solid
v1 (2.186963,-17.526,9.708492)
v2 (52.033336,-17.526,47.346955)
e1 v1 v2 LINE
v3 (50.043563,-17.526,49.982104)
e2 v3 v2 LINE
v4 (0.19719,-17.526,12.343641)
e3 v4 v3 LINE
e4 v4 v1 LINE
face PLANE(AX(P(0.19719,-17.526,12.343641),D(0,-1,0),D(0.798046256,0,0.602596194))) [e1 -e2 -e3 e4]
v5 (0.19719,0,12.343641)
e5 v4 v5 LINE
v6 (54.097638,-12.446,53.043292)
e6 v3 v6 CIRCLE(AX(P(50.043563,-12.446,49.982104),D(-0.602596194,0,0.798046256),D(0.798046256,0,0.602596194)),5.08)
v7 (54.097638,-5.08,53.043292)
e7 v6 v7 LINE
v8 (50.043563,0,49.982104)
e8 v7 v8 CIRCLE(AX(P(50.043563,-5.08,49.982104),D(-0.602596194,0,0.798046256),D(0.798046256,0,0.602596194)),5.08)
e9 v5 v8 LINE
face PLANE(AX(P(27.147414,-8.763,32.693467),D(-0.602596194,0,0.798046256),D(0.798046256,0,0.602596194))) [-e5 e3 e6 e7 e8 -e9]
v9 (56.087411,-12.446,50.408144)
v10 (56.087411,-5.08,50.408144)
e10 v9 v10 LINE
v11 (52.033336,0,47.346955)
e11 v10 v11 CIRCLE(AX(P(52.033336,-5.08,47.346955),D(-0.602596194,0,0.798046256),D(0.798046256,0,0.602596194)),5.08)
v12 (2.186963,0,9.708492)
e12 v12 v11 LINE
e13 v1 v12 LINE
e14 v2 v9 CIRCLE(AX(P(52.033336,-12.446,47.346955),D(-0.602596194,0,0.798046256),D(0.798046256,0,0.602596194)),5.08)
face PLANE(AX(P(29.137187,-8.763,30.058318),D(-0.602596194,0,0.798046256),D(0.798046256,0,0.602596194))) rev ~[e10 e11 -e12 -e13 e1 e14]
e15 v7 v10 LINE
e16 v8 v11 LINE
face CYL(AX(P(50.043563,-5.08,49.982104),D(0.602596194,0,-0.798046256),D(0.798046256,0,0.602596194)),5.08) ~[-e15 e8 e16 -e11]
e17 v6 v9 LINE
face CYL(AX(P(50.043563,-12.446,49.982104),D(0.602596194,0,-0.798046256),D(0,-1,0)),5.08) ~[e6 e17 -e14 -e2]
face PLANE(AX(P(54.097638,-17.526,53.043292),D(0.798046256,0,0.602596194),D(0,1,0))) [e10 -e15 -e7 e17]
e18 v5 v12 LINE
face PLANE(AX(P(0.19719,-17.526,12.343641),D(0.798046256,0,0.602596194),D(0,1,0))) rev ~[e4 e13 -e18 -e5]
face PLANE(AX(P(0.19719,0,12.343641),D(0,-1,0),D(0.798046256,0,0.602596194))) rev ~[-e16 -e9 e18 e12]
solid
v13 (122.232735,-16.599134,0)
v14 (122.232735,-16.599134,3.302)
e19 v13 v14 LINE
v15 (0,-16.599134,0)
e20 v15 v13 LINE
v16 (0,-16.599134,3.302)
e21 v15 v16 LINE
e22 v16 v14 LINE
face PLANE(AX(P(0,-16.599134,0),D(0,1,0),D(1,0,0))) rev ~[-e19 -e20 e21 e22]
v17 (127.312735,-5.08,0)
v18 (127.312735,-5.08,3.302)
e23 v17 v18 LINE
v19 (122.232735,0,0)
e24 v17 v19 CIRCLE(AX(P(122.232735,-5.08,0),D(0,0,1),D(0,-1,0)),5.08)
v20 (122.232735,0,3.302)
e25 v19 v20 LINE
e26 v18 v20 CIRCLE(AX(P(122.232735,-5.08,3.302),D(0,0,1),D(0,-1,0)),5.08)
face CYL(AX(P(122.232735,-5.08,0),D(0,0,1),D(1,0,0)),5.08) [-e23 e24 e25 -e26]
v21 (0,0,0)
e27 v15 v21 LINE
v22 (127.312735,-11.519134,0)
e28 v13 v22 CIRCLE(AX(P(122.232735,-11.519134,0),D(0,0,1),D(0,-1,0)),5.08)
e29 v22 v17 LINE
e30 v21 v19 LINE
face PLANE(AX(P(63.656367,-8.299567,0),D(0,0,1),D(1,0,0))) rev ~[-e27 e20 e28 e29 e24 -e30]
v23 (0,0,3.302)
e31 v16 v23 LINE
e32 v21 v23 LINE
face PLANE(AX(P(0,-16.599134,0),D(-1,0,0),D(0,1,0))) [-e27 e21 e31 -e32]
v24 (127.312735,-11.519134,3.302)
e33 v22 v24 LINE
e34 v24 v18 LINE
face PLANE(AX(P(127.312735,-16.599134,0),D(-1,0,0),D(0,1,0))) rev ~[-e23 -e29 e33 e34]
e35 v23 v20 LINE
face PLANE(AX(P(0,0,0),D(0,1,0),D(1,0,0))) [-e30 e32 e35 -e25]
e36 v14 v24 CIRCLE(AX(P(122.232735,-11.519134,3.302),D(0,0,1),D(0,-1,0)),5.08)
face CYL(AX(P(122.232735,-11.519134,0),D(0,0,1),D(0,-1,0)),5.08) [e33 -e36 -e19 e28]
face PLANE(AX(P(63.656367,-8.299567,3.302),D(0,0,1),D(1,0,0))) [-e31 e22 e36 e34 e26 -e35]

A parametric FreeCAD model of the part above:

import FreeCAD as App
import Part
import Sketcher
from FreeCAD import Vector
Q = App.Units.Quantity


def edges_at(feature, points):
    """Names of the edges that pass closest to the given points."""
    edges = feature.Shape.Edges
    near = lambda p: min(range(len(edges)), key=lambda i: edges[i].distToShape(Part.Vertex(*p))[0])
    return sorted({f"Edge{near(p) + 1}" for p in points})


def add_polygon(sketch, points):
    """Adds a closed chain of lines whose ends are joined by coincident constraints."""
    first, n = sketch.GeometryCount, len(points)
    for a, b in zip(points, points[1:] + points[:1]):
        sketch.addGeometry(Part.LineSegment(App.Vector(*a, 0), App.Vector(*b, 0)), False)
    for i in range(n):
        sketch.addConstraint(Sketcher.Constraint("Coincident", first + i, 2, first + (i + 1) % n, 1))

doc = App.newDocument("Part")
body = doc.addObject("PartDesign::Body", "Body")

# Sketch on XY plane
sketch1 = body.newObject("Sketcher::SketchObject", "Sketch")
sketch1.AttachmentSupport = (doc.getObject("XY_Plane"), [""])
sketch1.MapMode = "FlatFace"
add_polygon(sketch1, [(0, 0), (0, -17), (127, -17), (127, 0)])  # lines 0-3
sketch1.addConstraint(Sketcher.Constraint("Vertical", 0))
sketch1.addConstraint(Sketcher.Constraint("Horizontal", 1))
sketch1.addConstraint(Sketcher.Constraint("Vertical", 2))
sketch1.addConstraint(Sketcher.Constraint("Horizontal", 3))
sketch1.addConstraint(Sketcher.Constraint("Coincident", 3, 2, -1, 1))
sketch1.addConstraint(Sketcher.Constraint("DistanceX", 1, 1, 1, 2, 127.312735))
sketch1.addConstraint(Sketcher.Constraint("DistanceY", 0, 2, 0, 1, 16.599134))
pad1 = body.newObject("PartDesign::Pad", "Pad")
pad1.Profile = sketch1
pad1.Length = Q("0.13 in")
doc.recompute()

fillet = body.newObject("PartDesign::Fillet", "Fillet")
fillet.Base = (pad1, edges_at(pad1, [(127.313, 0, 1.651), (127.313, -16.599, 1.651)]))
fillet.Radius = Q("0.2 in")
body2 = doc.addObject("PartDesign::Body", "Body001")

# Sketch on an angled plane
sketch2 = body2.newObject("Sketcher::SketchObject", "Sketch001")
sketch2.Placement = App.Placement(Vector(-5.864446, 0, 7.766564), App.Rotation(Vector(0.798046256, 0, 0.602596194), Vector(0, 1, 0), Vector(-0.602596194, 0, 0.798046256), "ZXY"))
add_polygon(sketch2, [(8, 0), (8, -18), (75, -18), (75, 0)])  # lines 0-3
sketch2.addConstraint(Sketcher.Constraint("Vertical", 0))
sketch2.addConstraint(Sketcher.Constraint("Horizontal", 1))
sketch2.addConstraint(Sketcher.Constraint("Vertical", 2))
sketch2.addConstraint(Sketcher.Constraint("Horizontal", 3))
sketch2.addConstraint(Sketcher.Constraint("PointOnObject", 2, 2, -1))
sketch2.addConstraint(Sketcher.Constraint("DistanceY", 0, 2, 0, 1, Q("0.69 in")))
sketch2.addConstraint(Sketcher.Constraint("DistanceX", -1, 1, 1, 2, 75.136101))
sketch2.addConstraint(Sketcher.Constraint("DistanceX", 1, 1, 1, 2, 67.540506))
pad2 = body2.newObject("PartDesign::Pad", "Pad001")
pad2.Profile = sketch2
pad2.Length = Q("0.13 in")
pad2.Reversed = True
doc.recompute()

fillet2 = body2.newObject("PartDesign::Fillet", "Fillet001")
fillet2.Base = (pad2, edges_at(pad2, [(55.093, 0, 51.726), (55.093, -17.526, 51.726)]))
fillet2.Radius = Q("0.2 in")

doc.recompute()
